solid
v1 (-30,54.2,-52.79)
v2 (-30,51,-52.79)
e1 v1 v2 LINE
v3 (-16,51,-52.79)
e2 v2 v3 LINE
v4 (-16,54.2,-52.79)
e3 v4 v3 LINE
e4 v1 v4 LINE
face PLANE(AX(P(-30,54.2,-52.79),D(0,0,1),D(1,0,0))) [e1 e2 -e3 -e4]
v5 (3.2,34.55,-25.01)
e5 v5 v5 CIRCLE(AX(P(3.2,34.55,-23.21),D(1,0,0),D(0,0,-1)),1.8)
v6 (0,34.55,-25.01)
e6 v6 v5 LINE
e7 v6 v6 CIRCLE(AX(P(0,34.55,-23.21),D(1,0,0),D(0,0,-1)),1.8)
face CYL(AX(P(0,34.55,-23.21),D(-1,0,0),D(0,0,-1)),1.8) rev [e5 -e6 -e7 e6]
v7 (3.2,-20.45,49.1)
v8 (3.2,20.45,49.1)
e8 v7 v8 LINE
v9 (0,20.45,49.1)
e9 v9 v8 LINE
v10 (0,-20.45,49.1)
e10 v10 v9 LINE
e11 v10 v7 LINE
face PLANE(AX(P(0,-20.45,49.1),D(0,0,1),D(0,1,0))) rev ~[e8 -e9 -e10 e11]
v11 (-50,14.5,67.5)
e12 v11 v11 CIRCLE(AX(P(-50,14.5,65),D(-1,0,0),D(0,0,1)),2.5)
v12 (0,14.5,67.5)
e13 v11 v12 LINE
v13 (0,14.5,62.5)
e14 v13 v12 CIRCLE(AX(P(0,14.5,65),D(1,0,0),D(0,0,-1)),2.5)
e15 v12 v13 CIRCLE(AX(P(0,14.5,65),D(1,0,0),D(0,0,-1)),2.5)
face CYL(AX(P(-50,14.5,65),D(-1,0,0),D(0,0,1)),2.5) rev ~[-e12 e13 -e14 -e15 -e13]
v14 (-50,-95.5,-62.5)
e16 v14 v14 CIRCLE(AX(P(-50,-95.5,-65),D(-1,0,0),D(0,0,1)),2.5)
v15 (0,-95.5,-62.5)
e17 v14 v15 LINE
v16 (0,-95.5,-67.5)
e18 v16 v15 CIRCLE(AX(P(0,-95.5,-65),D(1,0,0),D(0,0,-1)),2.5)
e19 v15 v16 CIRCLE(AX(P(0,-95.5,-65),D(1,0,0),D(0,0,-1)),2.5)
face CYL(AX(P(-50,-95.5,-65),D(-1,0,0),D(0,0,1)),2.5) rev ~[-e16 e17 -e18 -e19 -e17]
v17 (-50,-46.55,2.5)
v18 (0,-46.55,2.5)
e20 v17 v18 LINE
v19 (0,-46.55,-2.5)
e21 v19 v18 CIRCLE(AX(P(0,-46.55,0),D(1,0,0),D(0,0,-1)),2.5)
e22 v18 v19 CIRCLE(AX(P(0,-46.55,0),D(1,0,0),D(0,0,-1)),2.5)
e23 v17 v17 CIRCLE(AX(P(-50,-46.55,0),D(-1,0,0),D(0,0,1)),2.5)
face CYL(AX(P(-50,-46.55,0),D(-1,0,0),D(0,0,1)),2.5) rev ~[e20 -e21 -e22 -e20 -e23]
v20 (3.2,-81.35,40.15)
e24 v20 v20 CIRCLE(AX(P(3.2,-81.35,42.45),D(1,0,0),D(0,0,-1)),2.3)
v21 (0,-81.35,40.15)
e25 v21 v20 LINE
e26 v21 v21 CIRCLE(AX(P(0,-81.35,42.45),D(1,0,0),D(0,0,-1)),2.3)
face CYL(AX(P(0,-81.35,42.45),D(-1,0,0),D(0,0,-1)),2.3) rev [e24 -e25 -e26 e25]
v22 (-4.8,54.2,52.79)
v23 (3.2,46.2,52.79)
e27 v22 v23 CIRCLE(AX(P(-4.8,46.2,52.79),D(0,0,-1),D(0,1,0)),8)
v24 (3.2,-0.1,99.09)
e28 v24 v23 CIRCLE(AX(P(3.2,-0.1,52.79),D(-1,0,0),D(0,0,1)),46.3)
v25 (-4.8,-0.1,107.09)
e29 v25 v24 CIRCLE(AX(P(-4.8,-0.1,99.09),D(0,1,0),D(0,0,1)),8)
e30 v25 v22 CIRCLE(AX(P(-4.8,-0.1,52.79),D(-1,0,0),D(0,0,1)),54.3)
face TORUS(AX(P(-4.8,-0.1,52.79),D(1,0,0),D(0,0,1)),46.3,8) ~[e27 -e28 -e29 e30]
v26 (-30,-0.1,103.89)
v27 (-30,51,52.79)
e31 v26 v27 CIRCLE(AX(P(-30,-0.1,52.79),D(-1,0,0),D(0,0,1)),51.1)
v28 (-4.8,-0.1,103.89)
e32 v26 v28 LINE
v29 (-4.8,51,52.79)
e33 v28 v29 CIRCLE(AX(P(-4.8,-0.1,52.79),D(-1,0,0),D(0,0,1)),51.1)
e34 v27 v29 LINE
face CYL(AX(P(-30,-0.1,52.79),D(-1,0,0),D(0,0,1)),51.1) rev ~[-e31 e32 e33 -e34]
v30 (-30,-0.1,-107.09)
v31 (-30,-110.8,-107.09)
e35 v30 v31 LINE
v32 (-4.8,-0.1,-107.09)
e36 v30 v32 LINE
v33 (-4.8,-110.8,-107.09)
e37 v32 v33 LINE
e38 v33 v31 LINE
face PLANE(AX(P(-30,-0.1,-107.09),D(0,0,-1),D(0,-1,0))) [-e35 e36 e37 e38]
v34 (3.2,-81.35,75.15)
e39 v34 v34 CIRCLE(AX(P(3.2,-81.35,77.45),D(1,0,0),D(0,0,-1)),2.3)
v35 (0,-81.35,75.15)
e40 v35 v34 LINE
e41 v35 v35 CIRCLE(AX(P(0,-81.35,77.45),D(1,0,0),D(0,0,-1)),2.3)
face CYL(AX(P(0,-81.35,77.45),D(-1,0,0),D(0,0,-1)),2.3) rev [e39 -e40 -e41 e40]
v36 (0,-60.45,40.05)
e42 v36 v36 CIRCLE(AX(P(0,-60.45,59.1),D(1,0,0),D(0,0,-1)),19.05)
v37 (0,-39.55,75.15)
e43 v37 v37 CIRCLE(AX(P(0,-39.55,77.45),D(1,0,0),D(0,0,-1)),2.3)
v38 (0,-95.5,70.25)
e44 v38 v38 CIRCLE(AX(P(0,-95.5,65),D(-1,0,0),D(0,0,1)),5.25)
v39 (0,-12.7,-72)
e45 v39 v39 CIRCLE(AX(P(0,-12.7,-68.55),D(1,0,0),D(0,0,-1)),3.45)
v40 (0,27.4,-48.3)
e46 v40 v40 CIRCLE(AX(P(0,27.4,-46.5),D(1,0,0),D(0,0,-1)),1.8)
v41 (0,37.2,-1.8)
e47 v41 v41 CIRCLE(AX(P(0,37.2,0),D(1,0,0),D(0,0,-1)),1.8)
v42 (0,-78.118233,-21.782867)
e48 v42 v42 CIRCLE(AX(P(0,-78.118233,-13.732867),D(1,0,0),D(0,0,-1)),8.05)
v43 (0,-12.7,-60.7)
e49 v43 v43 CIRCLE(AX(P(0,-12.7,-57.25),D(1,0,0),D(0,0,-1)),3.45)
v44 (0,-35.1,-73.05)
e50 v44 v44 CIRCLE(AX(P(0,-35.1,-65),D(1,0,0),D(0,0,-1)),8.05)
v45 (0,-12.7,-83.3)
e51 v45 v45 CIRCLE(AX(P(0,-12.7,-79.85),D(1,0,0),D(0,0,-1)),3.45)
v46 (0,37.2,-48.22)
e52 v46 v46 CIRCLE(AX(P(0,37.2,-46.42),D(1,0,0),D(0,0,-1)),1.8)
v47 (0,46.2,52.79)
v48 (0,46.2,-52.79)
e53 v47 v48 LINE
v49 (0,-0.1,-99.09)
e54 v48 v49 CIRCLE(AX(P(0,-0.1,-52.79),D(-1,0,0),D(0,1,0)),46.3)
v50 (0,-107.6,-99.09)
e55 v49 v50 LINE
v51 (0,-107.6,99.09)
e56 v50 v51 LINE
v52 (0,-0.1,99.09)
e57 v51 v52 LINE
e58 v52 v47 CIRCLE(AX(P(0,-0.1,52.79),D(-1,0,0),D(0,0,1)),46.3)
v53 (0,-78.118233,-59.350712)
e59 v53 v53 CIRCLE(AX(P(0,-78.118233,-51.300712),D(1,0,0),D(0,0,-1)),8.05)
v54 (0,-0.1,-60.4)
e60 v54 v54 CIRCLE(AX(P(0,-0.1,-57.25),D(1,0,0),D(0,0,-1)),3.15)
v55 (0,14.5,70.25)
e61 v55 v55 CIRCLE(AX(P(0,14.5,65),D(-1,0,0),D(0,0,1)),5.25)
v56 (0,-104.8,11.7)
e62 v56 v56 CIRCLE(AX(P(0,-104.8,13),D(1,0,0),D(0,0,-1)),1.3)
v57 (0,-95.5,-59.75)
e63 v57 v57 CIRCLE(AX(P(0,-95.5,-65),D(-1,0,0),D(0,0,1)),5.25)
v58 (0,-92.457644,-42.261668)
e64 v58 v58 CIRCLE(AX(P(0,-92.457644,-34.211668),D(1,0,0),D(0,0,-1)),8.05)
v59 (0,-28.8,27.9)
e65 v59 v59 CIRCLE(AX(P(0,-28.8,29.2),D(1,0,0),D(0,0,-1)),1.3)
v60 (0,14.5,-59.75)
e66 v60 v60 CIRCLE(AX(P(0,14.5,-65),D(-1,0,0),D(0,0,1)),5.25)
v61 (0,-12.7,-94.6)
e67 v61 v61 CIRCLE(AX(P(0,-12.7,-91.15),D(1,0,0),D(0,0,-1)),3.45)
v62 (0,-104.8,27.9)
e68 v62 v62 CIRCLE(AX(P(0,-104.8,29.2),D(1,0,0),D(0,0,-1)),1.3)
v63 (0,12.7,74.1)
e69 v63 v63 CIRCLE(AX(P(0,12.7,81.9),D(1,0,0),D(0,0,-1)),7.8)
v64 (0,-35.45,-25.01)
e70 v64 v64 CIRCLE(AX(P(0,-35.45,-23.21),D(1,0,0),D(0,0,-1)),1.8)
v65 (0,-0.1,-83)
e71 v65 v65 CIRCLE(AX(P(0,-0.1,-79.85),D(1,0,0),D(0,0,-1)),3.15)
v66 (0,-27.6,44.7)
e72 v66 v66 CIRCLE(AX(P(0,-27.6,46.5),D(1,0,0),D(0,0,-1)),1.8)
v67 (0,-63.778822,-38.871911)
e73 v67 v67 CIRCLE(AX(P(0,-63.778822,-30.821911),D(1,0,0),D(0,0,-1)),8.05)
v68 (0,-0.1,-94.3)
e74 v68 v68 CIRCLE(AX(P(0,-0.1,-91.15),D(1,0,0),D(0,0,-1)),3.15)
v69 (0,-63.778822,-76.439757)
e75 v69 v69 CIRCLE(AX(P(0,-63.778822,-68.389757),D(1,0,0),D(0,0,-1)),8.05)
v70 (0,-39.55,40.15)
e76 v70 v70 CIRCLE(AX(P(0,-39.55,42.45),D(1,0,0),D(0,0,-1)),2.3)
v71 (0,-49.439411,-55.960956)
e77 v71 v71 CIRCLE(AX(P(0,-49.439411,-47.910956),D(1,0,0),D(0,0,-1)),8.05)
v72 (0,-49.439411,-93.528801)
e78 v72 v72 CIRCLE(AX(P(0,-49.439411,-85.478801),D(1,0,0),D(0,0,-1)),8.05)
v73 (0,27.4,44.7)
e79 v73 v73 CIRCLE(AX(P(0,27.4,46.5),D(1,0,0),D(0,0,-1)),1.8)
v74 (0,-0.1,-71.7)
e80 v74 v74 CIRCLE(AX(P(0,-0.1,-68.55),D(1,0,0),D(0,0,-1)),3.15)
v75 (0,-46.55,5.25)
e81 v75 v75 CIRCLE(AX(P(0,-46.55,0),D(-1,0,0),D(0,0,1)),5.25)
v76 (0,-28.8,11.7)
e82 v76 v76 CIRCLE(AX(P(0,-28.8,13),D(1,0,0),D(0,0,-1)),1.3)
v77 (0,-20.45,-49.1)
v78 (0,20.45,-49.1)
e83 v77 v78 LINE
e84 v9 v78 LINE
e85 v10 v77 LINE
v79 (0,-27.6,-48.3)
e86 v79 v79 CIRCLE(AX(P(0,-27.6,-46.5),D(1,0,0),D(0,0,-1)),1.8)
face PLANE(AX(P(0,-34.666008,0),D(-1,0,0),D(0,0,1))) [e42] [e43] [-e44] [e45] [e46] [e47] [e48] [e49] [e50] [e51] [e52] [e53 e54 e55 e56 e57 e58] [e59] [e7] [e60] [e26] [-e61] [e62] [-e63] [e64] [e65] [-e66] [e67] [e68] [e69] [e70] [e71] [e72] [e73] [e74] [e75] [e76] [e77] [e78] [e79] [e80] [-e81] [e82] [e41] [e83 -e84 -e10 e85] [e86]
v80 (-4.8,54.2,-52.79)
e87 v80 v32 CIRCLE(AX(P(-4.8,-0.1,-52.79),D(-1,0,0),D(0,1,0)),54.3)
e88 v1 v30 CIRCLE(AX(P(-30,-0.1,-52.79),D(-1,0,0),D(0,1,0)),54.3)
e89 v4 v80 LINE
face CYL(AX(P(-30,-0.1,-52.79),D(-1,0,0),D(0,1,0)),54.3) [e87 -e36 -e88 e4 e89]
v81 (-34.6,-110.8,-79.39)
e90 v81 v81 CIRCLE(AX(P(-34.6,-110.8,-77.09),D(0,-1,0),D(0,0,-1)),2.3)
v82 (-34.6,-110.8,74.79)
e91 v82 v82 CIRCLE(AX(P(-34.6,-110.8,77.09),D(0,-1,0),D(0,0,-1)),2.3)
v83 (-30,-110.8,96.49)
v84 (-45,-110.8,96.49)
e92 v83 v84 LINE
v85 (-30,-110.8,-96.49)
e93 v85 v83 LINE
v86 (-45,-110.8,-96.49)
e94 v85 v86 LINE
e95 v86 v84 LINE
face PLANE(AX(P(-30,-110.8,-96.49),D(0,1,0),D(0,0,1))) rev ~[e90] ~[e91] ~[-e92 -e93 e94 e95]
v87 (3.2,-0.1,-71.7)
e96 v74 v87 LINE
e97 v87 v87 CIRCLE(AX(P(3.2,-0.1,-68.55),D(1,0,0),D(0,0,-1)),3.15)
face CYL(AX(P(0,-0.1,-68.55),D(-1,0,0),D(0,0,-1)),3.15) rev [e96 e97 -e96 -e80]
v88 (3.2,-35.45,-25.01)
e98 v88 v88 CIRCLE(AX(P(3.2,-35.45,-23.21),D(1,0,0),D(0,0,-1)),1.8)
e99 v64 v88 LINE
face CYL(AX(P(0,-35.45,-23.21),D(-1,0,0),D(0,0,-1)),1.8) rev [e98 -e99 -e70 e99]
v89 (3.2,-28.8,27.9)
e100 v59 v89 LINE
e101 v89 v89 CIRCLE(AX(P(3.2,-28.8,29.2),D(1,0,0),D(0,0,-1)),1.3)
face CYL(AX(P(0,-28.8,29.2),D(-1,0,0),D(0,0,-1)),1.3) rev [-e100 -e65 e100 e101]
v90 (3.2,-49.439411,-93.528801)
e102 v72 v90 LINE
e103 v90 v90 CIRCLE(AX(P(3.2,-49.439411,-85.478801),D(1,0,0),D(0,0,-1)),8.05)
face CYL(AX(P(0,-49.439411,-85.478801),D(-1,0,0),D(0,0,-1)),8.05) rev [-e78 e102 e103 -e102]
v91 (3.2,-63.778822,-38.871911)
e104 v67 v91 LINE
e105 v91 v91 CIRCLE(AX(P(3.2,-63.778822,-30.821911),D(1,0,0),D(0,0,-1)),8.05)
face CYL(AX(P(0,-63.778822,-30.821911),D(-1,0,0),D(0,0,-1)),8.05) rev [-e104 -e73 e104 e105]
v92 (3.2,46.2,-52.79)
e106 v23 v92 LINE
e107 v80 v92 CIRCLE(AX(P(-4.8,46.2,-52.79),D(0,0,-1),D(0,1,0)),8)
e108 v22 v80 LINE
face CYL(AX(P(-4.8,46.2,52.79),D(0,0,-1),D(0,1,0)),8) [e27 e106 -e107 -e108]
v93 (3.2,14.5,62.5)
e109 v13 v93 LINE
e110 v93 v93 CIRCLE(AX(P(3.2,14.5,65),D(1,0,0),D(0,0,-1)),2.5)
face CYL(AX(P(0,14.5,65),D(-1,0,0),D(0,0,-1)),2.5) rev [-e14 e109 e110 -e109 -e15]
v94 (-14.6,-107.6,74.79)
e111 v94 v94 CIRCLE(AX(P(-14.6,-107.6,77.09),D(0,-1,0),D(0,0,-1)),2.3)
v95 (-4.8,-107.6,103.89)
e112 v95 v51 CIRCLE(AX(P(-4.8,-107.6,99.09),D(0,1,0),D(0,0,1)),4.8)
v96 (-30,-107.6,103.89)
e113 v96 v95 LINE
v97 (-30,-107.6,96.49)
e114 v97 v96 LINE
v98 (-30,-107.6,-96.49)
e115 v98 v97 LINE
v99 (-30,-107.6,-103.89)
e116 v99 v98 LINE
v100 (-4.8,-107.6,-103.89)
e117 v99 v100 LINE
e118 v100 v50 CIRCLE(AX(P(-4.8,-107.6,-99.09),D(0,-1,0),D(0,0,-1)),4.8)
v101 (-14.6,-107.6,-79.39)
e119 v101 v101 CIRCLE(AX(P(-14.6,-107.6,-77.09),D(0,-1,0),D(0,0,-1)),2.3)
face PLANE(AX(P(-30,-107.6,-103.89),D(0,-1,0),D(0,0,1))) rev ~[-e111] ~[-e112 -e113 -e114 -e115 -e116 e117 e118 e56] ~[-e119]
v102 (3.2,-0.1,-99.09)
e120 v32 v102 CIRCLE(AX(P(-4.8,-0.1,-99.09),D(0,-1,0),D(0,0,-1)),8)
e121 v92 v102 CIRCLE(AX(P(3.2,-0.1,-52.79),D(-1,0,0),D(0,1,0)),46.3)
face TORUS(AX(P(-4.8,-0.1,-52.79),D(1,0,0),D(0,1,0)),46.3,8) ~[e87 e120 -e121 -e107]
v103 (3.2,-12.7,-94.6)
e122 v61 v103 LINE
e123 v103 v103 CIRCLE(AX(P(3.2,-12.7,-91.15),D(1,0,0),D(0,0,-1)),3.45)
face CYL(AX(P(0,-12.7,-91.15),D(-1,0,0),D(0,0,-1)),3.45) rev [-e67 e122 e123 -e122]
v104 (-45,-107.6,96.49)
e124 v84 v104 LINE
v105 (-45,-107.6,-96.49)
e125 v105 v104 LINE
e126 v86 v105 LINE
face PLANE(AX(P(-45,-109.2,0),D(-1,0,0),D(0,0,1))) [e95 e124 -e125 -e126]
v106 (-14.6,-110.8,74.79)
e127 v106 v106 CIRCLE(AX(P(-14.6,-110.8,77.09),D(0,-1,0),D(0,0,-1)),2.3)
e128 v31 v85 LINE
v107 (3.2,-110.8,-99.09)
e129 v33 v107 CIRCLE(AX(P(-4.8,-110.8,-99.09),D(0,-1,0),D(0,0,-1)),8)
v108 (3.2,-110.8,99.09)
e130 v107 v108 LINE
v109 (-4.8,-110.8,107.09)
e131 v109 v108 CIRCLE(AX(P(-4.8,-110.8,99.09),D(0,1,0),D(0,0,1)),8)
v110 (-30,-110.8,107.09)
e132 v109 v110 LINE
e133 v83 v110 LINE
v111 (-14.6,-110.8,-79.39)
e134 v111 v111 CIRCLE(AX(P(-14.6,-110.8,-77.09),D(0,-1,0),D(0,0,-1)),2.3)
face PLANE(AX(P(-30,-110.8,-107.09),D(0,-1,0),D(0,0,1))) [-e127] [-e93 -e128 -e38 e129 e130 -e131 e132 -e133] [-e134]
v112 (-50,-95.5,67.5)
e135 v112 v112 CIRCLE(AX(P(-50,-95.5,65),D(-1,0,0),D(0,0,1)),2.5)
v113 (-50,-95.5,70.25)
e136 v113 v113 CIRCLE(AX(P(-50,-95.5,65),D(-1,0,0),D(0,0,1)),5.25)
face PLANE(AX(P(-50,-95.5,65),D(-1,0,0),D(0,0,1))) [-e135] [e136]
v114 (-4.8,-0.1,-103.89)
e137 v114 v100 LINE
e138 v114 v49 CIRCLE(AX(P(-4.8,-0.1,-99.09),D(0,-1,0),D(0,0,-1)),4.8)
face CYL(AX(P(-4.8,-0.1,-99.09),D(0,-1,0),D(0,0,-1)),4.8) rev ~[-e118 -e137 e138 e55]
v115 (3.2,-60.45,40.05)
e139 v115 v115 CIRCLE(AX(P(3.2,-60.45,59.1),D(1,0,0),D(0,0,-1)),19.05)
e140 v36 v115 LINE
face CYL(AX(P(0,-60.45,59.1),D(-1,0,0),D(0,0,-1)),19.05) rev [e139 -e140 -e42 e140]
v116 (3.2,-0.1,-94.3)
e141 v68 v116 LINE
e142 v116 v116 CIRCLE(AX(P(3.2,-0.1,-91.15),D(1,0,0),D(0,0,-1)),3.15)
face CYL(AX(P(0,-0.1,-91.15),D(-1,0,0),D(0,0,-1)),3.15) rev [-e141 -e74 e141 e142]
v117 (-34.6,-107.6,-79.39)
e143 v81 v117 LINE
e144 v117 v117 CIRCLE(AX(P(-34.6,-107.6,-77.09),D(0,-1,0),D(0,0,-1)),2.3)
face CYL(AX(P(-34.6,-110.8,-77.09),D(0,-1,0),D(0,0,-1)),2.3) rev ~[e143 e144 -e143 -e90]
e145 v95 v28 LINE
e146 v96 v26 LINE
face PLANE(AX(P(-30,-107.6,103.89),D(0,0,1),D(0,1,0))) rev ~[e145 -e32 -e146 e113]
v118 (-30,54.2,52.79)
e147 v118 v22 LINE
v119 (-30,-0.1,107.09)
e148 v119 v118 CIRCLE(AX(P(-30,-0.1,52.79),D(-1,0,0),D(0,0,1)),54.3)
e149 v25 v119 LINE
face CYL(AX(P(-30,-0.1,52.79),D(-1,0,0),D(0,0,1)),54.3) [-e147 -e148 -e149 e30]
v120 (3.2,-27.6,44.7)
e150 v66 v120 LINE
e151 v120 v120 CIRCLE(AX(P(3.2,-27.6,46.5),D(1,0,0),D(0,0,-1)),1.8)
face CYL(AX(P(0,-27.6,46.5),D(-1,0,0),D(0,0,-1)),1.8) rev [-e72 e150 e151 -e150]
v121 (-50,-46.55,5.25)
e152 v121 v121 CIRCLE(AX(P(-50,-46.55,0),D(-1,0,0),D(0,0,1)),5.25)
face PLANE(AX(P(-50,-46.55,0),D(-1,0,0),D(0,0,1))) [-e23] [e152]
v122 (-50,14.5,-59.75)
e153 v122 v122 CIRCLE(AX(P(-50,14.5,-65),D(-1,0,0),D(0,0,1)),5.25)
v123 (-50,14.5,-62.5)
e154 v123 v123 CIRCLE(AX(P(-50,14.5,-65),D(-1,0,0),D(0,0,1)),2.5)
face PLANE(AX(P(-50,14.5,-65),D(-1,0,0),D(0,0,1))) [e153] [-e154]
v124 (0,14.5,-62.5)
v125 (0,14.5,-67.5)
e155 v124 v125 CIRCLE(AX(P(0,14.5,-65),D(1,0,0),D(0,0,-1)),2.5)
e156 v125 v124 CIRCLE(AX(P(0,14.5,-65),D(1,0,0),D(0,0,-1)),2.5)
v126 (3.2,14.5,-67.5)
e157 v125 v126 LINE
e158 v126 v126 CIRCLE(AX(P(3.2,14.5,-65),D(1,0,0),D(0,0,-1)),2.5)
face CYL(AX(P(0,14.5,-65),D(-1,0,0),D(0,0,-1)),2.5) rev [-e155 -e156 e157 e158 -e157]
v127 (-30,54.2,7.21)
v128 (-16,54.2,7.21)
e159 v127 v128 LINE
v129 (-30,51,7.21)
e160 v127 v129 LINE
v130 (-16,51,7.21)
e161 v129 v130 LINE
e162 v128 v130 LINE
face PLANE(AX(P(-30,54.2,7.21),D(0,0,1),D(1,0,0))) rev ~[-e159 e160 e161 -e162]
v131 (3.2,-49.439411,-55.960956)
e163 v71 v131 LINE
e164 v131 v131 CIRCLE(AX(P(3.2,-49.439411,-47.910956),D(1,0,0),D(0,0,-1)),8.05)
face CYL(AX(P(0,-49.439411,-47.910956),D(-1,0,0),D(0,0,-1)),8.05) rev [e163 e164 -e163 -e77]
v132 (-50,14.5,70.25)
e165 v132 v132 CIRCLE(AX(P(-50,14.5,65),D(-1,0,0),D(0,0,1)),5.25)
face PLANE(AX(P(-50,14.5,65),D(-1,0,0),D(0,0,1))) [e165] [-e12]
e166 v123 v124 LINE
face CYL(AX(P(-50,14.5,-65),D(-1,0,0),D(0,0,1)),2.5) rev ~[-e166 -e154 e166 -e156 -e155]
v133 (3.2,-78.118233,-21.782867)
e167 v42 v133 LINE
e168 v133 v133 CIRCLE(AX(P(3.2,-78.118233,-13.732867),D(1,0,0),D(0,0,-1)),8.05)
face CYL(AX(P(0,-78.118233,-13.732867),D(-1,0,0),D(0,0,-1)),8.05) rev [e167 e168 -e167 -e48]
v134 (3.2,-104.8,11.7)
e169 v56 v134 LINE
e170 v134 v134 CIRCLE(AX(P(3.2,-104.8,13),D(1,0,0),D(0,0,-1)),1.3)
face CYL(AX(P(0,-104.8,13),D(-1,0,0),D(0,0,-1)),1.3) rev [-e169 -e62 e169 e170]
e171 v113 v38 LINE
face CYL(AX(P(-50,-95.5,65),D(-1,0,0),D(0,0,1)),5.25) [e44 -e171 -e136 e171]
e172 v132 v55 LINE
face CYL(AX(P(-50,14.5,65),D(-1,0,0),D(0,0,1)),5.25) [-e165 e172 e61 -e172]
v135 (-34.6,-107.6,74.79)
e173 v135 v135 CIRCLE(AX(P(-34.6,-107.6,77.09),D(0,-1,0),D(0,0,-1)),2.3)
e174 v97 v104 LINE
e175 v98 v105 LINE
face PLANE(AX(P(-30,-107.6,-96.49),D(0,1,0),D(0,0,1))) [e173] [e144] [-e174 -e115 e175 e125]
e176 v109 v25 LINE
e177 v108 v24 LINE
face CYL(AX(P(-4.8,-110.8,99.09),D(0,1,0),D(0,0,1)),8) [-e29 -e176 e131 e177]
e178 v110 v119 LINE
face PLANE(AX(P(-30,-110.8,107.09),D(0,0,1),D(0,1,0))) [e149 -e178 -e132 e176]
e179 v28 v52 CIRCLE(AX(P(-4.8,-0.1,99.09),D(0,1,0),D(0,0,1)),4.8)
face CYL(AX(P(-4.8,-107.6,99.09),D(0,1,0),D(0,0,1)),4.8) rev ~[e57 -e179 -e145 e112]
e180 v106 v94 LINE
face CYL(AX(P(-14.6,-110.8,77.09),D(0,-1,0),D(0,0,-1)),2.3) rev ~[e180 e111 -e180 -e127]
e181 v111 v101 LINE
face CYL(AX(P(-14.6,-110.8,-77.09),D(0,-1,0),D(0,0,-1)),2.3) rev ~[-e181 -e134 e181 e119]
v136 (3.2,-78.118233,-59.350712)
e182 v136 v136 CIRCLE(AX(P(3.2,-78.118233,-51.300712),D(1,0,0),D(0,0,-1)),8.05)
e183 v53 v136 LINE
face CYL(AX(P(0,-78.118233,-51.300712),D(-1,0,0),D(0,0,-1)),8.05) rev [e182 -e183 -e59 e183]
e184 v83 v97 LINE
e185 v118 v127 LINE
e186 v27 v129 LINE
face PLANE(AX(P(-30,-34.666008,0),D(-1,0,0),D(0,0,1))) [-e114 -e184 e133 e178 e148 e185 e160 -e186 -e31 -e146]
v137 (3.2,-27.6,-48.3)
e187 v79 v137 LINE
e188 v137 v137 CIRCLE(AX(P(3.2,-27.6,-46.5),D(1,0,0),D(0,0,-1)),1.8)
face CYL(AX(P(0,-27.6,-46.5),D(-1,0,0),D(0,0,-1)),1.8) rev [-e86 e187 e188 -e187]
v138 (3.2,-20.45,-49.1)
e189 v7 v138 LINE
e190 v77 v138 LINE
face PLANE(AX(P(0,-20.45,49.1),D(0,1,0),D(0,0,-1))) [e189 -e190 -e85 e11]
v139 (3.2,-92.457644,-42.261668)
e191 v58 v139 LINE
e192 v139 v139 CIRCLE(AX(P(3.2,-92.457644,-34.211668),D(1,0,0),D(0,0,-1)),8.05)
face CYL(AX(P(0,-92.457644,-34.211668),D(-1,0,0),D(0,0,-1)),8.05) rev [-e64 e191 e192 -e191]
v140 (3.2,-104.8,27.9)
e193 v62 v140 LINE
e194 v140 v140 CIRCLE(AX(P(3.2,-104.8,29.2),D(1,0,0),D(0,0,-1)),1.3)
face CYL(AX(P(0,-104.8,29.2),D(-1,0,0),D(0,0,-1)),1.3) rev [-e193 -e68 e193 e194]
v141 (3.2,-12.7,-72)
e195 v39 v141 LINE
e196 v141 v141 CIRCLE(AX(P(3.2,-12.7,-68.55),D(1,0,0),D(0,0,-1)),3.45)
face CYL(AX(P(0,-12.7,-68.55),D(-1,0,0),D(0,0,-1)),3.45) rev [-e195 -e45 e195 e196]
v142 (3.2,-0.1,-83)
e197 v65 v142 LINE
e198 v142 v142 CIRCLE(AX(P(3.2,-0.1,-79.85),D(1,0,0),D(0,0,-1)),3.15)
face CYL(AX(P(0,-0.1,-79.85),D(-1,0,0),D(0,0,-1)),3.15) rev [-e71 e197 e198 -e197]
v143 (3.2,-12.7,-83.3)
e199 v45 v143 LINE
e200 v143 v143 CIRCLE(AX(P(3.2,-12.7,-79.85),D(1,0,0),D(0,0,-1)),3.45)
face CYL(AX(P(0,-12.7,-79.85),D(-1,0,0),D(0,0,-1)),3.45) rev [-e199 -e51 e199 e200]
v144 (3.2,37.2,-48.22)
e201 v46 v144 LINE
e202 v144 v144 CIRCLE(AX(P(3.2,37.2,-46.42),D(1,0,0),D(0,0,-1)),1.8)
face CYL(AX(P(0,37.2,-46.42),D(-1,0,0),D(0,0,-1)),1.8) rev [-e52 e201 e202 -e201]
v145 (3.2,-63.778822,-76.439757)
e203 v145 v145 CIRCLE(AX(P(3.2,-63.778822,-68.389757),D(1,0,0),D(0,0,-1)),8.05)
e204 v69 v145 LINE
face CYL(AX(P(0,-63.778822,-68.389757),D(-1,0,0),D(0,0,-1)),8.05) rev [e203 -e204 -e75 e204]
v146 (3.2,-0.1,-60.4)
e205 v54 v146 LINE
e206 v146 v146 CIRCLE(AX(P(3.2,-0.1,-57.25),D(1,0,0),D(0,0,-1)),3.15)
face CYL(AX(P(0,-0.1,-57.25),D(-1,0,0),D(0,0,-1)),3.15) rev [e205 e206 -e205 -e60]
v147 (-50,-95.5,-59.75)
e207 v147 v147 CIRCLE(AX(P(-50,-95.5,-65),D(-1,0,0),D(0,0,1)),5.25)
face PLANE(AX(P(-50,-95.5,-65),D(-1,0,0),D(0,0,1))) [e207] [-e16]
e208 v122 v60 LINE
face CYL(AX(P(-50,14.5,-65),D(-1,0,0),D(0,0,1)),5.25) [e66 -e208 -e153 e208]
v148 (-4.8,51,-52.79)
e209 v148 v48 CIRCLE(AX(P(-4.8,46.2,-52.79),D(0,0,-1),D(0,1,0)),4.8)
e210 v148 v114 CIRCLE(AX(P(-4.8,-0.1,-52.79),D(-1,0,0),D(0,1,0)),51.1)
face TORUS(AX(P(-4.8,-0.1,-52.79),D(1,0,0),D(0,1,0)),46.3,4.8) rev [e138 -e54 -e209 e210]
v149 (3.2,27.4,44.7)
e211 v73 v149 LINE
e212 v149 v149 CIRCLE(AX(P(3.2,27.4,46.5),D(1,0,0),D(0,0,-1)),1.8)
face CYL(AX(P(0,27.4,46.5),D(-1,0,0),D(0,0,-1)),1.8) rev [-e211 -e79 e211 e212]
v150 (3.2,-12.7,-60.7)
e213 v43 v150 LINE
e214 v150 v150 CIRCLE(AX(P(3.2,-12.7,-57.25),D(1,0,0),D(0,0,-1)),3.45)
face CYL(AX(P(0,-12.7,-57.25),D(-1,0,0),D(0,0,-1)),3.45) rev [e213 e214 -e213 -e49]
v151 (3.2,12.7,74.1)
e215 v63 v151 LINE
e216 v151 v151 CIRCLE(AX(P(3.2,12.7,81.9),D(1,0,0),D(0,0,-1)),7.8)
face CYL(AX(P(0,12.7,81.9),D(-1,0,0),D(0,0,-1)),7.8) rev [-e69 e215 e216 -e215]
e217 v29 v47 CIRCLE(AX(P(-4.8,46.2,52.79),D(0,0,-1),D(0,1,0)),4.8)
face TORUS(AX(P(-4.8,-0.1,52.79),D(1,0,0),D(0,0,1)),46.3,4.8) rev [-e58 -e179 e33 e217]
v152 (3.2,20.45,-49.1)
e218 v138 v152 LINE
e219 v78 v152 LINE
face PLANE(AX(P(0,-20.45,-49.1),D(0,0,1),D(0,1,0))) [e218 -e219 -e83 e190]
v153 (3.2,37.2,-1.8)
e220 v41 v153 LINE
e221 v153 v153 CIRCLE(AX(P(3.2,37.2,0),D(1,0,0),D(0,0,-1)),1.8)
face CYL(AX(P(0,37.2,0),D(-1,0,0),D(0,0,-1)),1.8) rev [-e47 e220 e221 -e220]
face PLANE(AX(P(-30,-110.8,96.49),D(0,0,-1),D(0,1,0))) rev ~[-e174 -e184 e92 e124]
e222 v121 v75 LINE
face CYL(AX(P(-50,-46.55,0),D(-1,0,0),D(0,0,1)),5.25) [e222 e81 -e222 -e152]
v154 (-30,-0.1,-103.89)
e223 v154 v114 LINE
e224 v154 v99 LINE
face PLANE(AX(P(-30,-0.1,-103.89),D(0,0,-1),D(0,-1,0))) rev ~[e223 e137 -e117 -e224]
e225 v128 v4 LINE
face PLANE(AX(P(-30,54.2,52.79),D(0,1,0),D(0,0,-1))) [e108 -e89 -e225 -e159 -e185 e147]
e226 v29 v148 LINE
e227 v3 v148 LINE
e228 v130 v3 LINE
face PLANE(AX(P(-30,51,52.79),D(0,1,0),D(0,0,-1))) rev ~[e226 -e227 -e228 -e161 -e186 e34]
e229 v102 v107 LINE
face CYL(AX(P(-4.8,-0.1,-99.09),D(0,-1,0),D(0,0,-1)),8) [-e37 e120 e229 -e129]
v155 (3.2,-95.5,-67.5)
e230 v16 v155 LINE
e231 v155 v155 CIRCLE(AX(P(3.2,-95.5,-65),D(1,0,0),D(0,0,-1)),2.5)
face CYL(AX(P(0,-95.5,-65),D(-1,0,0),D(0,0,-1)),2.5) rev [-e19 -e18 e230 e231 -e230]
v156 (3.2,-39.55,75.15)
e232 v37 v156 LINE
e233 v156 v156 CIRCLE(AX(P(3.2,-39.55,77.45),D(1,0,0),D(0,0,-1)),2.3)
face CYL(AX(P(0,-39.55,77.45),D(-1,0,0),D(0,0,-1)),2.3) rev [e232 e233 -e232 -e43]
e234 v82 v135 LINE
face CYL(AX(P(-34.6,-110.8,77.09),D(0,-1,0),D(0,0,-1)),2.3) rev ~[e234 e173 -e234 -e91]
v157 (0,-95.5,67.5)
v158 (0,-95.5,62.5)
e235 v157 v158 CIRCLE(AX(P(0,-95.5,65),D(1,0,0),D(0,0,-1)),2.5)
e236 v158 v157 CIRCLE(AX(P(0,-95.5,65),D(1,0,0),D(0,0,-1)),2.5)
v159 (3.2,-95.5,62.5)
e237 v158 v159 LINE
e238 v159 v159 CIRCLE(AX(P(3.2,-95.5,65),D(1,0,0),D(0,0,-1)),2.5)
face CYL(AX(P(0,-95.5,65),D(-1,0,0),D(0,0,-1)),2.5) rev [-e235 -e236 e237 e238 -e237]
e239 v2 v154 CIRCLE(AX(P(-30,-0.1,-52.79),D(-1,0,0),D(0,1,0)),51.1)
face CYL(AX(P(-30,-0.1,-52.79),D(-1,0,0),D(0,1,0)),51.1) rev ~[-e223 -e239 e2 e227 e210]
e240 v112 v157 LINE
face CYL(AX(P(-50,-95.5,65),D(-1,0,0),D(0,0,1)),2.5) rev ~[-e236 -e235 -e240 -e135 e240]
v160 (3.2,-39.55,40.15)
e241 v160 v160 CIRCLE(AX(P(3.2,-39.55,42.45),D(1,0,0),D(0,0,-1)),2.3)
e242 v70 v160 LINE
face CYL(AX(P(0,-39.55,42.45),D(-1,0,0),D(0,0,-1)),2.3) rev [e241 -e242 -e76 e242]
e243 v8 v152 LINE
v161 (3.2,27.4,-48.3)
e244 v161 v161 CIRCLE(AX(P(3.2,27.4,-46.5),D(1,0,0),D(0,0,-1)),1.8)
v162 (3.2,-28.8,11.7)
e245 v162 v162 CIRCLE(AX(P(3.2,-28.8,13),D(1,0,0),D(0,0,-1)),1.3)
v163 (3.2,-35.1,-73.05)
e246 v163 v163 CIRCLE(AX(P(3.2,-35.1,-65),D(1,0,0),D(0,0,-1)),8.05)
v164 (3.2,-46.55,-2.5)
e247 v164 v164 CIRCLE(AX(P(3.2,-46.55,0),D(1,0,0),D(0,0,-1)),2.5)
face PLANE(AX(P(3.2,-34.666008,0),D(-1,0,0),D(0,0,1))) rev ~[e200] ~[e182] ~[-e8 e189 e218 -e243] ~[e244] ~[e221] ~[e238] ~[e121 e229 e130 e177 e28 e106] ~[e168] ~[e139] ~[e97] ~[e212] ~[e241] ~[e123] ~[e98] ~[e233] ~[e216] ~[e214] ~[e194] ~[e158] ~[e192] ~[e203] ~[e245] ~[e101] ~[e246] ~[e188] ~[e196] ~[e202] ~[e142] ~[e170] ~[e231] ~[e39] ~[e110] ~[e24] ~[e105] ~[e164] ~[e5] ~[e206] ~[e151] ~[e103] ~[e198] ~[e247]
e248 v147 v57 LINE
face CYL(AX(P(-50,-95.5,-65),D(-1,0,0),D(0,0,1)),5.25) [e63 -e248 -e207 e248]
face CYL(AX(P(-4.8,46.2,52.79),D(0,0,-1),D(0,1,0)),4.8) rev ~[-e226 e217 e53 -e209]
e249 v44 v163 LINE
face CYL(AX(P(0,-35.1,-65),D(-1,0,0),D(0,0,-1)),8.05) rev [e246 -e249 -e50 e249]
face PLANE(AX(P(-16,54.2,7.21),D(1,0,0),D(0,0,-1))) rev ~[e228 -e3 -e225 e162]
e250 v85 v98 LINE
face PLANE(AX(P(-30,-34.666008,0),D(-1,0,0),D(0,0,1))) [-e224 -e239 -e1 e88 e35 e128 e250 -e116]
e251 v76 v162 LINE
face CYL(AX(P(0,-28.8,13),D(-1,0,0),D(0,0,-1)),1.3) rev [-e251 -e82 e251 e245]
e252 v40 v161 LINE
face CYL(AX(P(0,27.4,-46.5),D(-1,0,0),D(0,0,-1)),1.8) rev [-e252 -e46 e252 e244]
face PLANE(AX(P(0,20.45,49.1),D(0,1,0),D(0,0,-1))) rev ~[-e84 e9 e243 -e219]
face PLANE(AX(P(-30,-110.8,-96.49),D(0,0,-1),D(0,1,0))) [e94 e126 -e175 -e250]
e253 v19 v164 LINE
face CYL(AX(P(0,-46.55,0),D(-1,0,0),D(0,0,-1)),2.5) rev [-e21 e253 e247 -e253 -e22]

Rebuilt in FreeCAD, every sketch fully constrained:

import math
import FreeCAD as App
import Part
import Sketcher
from FreeCAD import Vector
Q = App.Units.Quantity


def edges_at(feature, points):
    """Names of the edges that pass closest to the given points."""
    edges = feature.Shape.Edges
    near = lambda p: min(range(len(edges)), key=lambda i: edges[i].distToShape(Part.Vertex(*p))[0])
    return sorted({f"Edge{near(p) + 1}" for p in points})


def add_polygon(sketch, points):
    """Adds a closed chain of lines whose ends are joined by coincident constraints."""
    first, n = sketch.GeometryCount, len(points)
    for a, b in zip(points, points[1:] + points[:1]):
        sketch.addGeometry(Part.LineSegment(App.Vector(*a, 0), App.Vector(*b, 0)), False)
    for i in range(n):
        sketch.addConstraint(Sketcher.Constraint("Coincident", first + i, 2, first + (i + 1) % n, 1))

doc = App.newDocument("Part")
body = doc.addObject("PartDesign::Body", "Body")

# Sketch on YZ plane
sketch1 = body.newObject("Sketcher::SketchObject", "Sketch")
sketch1.AttachmentSupport = (doc.getObject("YZ_Plane"), [""])
sketch1.MapMode = "FlatFace"
sketch1.addGeometry(Part.LineSegment(Vector(54.2, -52.8, 0), Vector(54.2, 52.8, 0)), False)  # 0
sketch1.addGeometry(Part.ArcOfCircle(Part.Circle(Vector(-0.1, 52.8, 0), Vector(0, 0, 1), 54.3), math.radians(0), math.radians(90)), False)  # 1
sketch1.addGeometry(Part.LineSegment(Vector(-0.1, 107.1, 0), Vector(-110.8, 107.1, 0)), False)  # 2
sketch1.addGeometry(Part.LineSegment(Vector(-110.8, 107.1, 0), Vector(-110.8, -107.1, 0)), False)  # 3
sketch1.addGeometry(Part.LineSegment(Vector(-110.8, -107.1, 0), Vector(-0.1, -107.1, 0)), False)  # 4
sketch1.addGeometry(Part.ArcOfCircle(Part.Circle(Vector(-0.1, -52.8, 0), Vector(0, 0, 1), 54.3), math.radians(-90), math.radians(0)), False)  # 5
sketch1.addGeometry(Part.Circle(Vector(-95.5, -65, 0), Vector(0, 0, 1), 2.5), False)  # 6
sketch1.addGeometry(Part.Circle(Vector(-78.1, -51.3, 0), Vector(0, 0, 1), 8.1), False)  # 7
sketch1.addGeometry(Part.Circle(Vector(-92.5, -34.2, 0), Vector(0, 0, 1), 8.1), False)  # 8
sketch1.addGeometry(Part.Circle(Vector(-78.1, -13.7, 0), Vector(0, 0, 1), 8.1), False)  # 9
sketch1.addGeometry(Part.Circle(Vector(-63.8, -68.4, 0), Vector(0, 0, 1), 8.1), False)  # 10
sketch1.addGeometry(Part.Circle(Vector(-49.4, -85.5, 0), Vector(0, 0, 1), 8.1), False)  # 11
sketch1.addGeometry(Part.Circle(Vector(-35.1, -65, 0), Vector(0, 0, 1), 8.1), False)  # 12
sketch1.addGeometry(Part.Circle(Vector(-63.8, -30.8, 0), Vector(0, 0, 1), 8.1), False)  # 13
sketch1.addGeometry(Part.Circle(Vector(-49.4, -47.9, 0), Vector(0, 0, 1), 8.1), False)  # 14
sketch1.addGeometry(Part.Circle(Vector(-35.5, -23.2, 0), Vector(0, 0, 1), 1.8), False)  # 15
sketch1.addGeometry(Part.Circle(Vector(-104.8, 13, 0), Vector(0, 0, 1), 1.3), False)  # 16
sketch1.addGeometry(Part.Circle(Vector(-104.8, 29.2, 0), Vector(0, 0, 1), 1.3), False)  # 17
sketch1.addGeometry(Part.Circle(Vector(-81.3, 42.5, 0), Vector(0, 0, 1), 2.3), False)  # 18
sketch1.addGeometry(Part.Circle(Vector(-95.5, 65, 0), Vector(0, 0, 1), 2.5), False)  # 19
sketch1.addGeometry(Part.Circle(Vector(-81.3, 77.5, 0), Vector(0, 0, 1), 2.3), False)  # 20
sketch1.addGeometry(Part.Circle(Vector(-46.5, 0, 0), Vector(0, 0, 1), 2.5), False)  # 21
sketch1.addGeometry(Part.Circle(Vector(-39.5, 42.5, 0), Vector(0, 0, 1), 2.3), False)  # 22
sketch1.addGeometry(Part.Circle(Vector(-60.5, 59.1, 0), Vector(0, 0, 1), 19.1), False)  # 23
sketch1.addGeometry(Part.Circle(Vector(-39.5, 77.5, 0), Vector(0, 0, 1), 2.3), False)  # 24
sketch1.addGeometry(Part.Circle(Vector(-12.7, -91.2, 0), Vector(0, 0, 1), 3.5), False)  # 25
sketch1.addGeometry(Part.Circle(Vector(-12.7, -79.8, 0), Vector(0, 0, 1), 3.5), False)  # 26
sketch1.addGeometry(Part.Circle(Vector(-0.1, -91.2, 0), Vector(0, 0, 1), 3.1), False)  # 27
sketch1.addGeometry(Part.Circle(Vector(-0.1, -79.8, 0), Vector(0, 0, 1), 3.1), False)  # 28
sketch1.addGeometry(Part.Circle(Vector(-12.7, -68.5, 0), Vector(0, 0, 1), 3.5), False)  # 29
sketch1.addGeometry(Part.Circle(Vector(-12.7, -57.2, 0), Vector(0, 0, 1), 3.5), False)  # 30
sketch1.addGeometry(Part.Circle(Vector(-0.1, -68.5, 0), Vector(0, 0, 1), 3.1), False)  # 31
sketch1.addGeometry(Part.Circle(Vector(-0.1, -57.2, 0), Vector(0, 0, 1), 3.1), False)  # 32
sketch1.addGeometry(Part.Circle(Vector(-27.6, -46.5, 0), Vector(0, 0, 1), 1.8), False)  # 33
sketch1.addGeometry(Part.Circle(Vector(14.5, -65, 0), Vector(0, 0, 1), 2.5), False)  # 34
sketch1.addGeometry(Part.Circle(Vector(27.4, -46.5, 0), Vector(0, 0, 1), 1.8), False)  # 35
sketch1.addGeometry(Part.Circle(Vector(37.2, -46.4, 0), Vector(0, 0, 1), 1.8), False)  # 36
sketch1.addGeometry(Part.Circle(Vector(34.5, -23.2, 0), Vector(0, 0, 1), 1.8), False)  # 37
sketch1.addGeometry(Part.Circle(Vector(-28.8, 13, 0), Vector(0, 0, 1), 1.3), False)  # 38
sketch1.addGeometry(Part.Circle(Vector(-28.8, 29.2, 0), Vector(0, 0, 1), 1.3), False)  # 39
add_polygon(sketch1, [(-20.4, 49.1), (20.4, 49.1), (20.4, -49.1), (-20.4, -49.1)])  # lines 40-43
sketch1.addGeometry(Part.Circle(Vector(-27.6, 46.5, 0), Vector(0, 0, 1), 1.8), False)  # 44
sketch1.addGeometry(Part.Circle(Vector(37.2, 0, 0), Vector(0, 0, 1), 1.8), False)  # 45
sketch1.addGeometry(Part.Circle(Vector(14.5, 65, 0), Vector(0, 0, 1), 2.5), False)  # 46
sketch1.addGeometry(Part.Circle(Vector(12.7, 81.9, 0), Vector(0, 0, 1), 7.8), False)  # 47
sketch1.addGeometry(Part.Circle(Vector(27.4, 46.5, 0), Vector(0, 0, 1), 1.8), False)  # 48
sketch1.addConstraint([
    Sketcher.Constraint("Tangent", 0, 2, 1, 1),
    Sketcher.Constraint("Tangent", 1, 2, 2, 1),
    Sketcher.Constraint("Coincident", 2, 2, 3, 1),
    Sketcher.Constraint("Coincident", 3, 2, 4, 1),
    Sketcher.Constraint("Tangent", 4, 2, 5, 1),
    Sketcher.Constraint("Tangent", 5, 2, 0, 1),
    Sketcher.Constraint("Vertical", 0),
    Sketcher.Constraint("Horizontal", 2),
    Sketcher.Constraint("Vertical", 3),
    Sketcher.Constraint("Horizontal", 4),
    Sketcher.Constraint("Horizontal", 40),
    Sketcher.Constraint("Vertical", 41),
    Sketcher.Constraint("Horizontal", 42),
    Sketcher.Constraint("Vertical", 43),
    Sketcher.Constraint("Equal", 1, 5),
    Sketcher.Constraint("Equal", 7, 8),
    Sketcher.Constraint("Equal", 8, 9),
    Sketcher.Constraint("Equal", 9, 10),
    Sketcher.Constraint("Equal", 10, 11),
    Sketcher.Constraint("Equal", 11, 12),
    Sketcher.Constraint("Equal", 12, 13),
    Sketcher.Constraint("Equal", 13, 14),
    Sketcher.Constraint("Equal", 16, 17),
    Sketcher.Constraint("Equal", 6, 19),
    Sketcher.Constraint("Equal", 18, 20),
    Sketcher.Constraint("Equal", 19, 21),
    Sketcher.Constraint("Equal", 20, 22),
    Sketcher.Constraint("Equal", 22, 24),
    Sketcher.Constraint("Equal", 25, 26),
    Sketcher.Constraint("Equal", 27, 28),
    Sketcher.Constraint("Equal", 26, 29),
    Sketcher.Constraint("Equal", 29, 30),
    Sketcher.Constraint("Equal", 28, 31),
    Sketcher.Constraint("Equal", 31, 32),
    Sketcher.Constraint("Equal", 15, 33),
    Sketcher.Constraint("Equal", 21, 34),
    Sketcher.Constraint("Equal", 33, 35),
    Sketcher.Constraint("Equal", 35, 36),
    Sketcher.Constraint("Equal", 36, 37),
    Sketcher.Constraint("Equal", 17, 38),
    Sketcher.Constraint("Equal", 38, 39),
    Sketcher.Constraint("Equal", 37, 44),
    Sketcher.Constraint("Equal", 44, 45),
    Sketcher.Constraint("Equal", 34, 46),
    Sketcher.Constraint("Equal", 45, 48),
    Sketcher.Constraint("Symmetric", 40, 2, 42, 2, -1, 1),
    Sketcher.Constraint("Symmetric", 6, 3, 19, 3, -1),
    Sketcher.Constraint("Symmetric", 33, 3, 44, 3, -1),
    Sketcher.Constraint("Symmetric", 34, 3, 46, 3, -1),
    Sketcher.Constraint("Symmetric", 35, 3, 48, 3, -1),
    Sketcher.Constraint("PointOnObject", 21, 3, -1),
    Sketcher.Constraint("PointOnObject", 45, 3, -1),
    Sketcher.Constraint("Horizontal", 6, 3, 12, 3),
    Sketcher.Constraint("Horizontal", 18, 3, 22, 3),
    Sketcher.Constraint("Horizontal", 20, 3, 24, 3),
    Sketcher.Constraint("Horizontal", 25, 3, 27, 3),
    Sketcher.Constraint("Horizontal", 26, 3, 28, 3),
    Sketcher.Constraint("Horizontal", 29, 3, 31, 3),
    Sketcher.Constraint("Horizontal", 30, 3, 32, 3),
    Sketcher.Constraint("Horizontal", 12, 3, 34, 3),
    Sketcher.Constraint("Horizontal", 33, 3, 35, 3),
    Sketcher.Constraint("Horizontal", 15, 3, 37, 3),
    Sketcher.Constraint("Horizontal", 16, 3, 38, 3),
    Sketcher.Constraint("Horizontal", 17, 3, 39, 3),
    Sketcher.Constraint("Vertical", 7, 3, 9, 3),
    Sketcher.Constraint("Vertical", 10, 3, 13, 3),
    Sketcher.Constraint("Vertical", 11, 3, 14, 3),
    Sketcher.Constraint("Vertical", 16, 3, 17, 3),
    Sketcher.Constraint("Vertical", 18, 3, 20, 3),
    Sketcher.Constraint("Vertical", 22, 3, 24, 3),
    Sketcher.Constraint("Vertical", 25, 3, 26, 3),
    Sketcher.Constraint("Vertical", 5, 3, 27, 3),
    Sketcher.Constraint("Vertical", 27, 3, 28, 3),
    Sketcher.Constraint("Vertical", 26, 3, 29, 3),
    Sketcher.Constraint("Vertical", 29, 3, 30, 3),
    Sketcher.Constraint("Vertical", 28, 3, 31, 3),
    Sketcher.Constraint("Vertical", 31, 3, 32, 3),
    Sketcher.Constraint("Vertical", 38, 3, 39, 3),
    Sketcher.Constraint("Vertical", 36, 3, 45, 3),
    Sketcher.Constraint("Diameter", 6, Q("5 mm")),
    Sketcher.Constraint("Diameter", 7, Q("16.1 mm")),
    Sketcher.Constraint("Diameter", 15, Q("3.6 mm")),
    Sketcher.Constraint("Diameter", 16, Q("2.6 mm")),
    Sketcher.Constraint("Diameter", 18, Q("4.6 mm")),
    Sketcher.Constraint("Diameter", 23, Q("38.1 mm")),
    Sketcher.Constraint("Diameter", 25, Q("6.9 mm")),
    Sketcher.Constraint("Diameter", 27, Q("6.3 mm")),
    Sketcher.Constraint("Diameter", 47, Q("15.6 mm")),
    Sketcher.Constraint("Radius", 1, Q("54.3 mm")),
    Sketcher.Constraint("DistanceX", 2, 2, 2, 1, Q("110.7 mm")),
    Sketcher.Constraint("DistanceX", 40, 1, 40, 2, Q("40.9 mm")),
    Sketcher.Constraint("DistanceY", 41, 2, 41, 1, Q("98.2 mm")),
    Sketcher.Constraint("DistanceY", 6, 3, -1, 1, Q("65 mm")),
    Sketcher.Constraint("DistanceY", -1, 1, 16, 3, Q("13 mm")),
    Sketcher.Constraint("DistanceX", 12, 3, 5, 3, Q("35 mm")),
    Sketcher.Constraint("DistanceY", 18, 3, 20, 3, Q("35 mm")),
    Sketcher.Constraint("DistanceX", 21, 3, 22, 3, Q("7 mm")),
    Sketcher.Constraint("DistanceX", 44, 3, 48, 3, Q("55 mm")),
    Sketcher.Constraint("DistanceX", 45, 3, 0, 2, Q("17 mm")),
    Sketcher.Constraint("DistanceY", 0, 1, 0, 2, Q("105.58 mm")),
    Sketcher.Constraint("DistanceX", 1, 3, -1, 1, Q("0.1 mm")),
    Sketcher.Constraint("DistanceX", 6, 3, -1, 1, Q("95.5 mm")),
    Sketcher.Constraint("DistanceX", 16, 3, -1, 1, Q("104.8 mm")),
    Sketcher.Constraint("DistanceY", -1, 1, 17, 3, Q("29.2 mm")),
    Sketcher.Constraint("DistanceY", -1, 1, 23, 3, Q("59.1 mm")),
    Sketcher.Constraint("DistanceX", 25, 3, -1, 1, Q("12.7 mm")),
    Sketcher.Constraint("DistanceX", 33, 3, -1, 1, Q("27.6 mm")),
    Sketcher.Constraint("DistanceY", 33, 3, -1, 1, Q("46.5 mm")),
    Sketcher.Constraint("DistanceX", -1, 1, 34, 3, Q("14.5 mm")),
    Sketcher.Constraint("DistanceX", 38, 3, -1, 1, Q("28.8 mm")),
    Sketcher.Constraint("DistanceX", -1, 1, 47, 3, Q("12.7 mm")),
    Sketcher.Constraint("DistanceY", -1, 1, 47, 3, Q("81.9 mm")),
    Sketcher.Constraint("DistanceX", 21, 3, 15, 3, Q("11.1 mm")),
    Sketcher.Constraint("DistanceX", 18, 3, 21, 3, Q("34.8 mm")),
    Sketcher.Constraint("DistanceX", 18, 3, 23, 3, Q("20.9 mm")),
    Sketcher.Constraint("DistanceY", 25, 3, 26, 3, Q("11.3 mm")),
    Sketcher.Constraint("DistanceY", 26, 3, 29, 3, Q("11.3 mm")),
    Sketcher.Constraint("DistanceY", 29, 3, 30, 3, Q("11.3 mm")),
    Sketcher.Constraint("DistanceX", 22, 3, 43, 2, Q("19.1 mm")),
    Sketcher.Constraint("DistanceY", -1, 1, 1, 3, Q("52.79 mm")),
    Sketcher.Constraint("DistanceY", 15, 3, -1, 1, Q("23.21 mm")),
    Sketcher.Constraint("DistanceY", -1, 1, 18, 3, Q("42.45 mm")),
    Sketcher.Constraint("DistanceY", 25, 3, -1, 1, Q("91.15 mm")),
    Sketcher.Constraint("DistanceY", 36, 3, -1, 1, Q("46.42 mm")),
    Sketcher.Constraint("DistanceX", -1, 1, 37, 3, Q("34.55 mm")),
    Sketcher.Constraint("DistanceY", 11, 3, -1, 1, Q("85.478801 mm")),
    Sketcher.Constraint("DistanceY", 8, 3, 9, 3, Q("20.478801 mm")),
    Sketcher.Constraint("DistanceY", 7, 3, 13, 3, Q("20.478801 mm")),
    Sketcher.Constraint("DistanceY", 10, 3, 14, 3, Q("20.478801 mm")),
    Sketcher.Constraint("DistanceX", 10, 3, -1, 1, Q("63.778822 mm")),
    Sketcher.Constraint("DistanceX", 11, 3, -1, 1, Q("49.439411 mm")),
    Sketcher.Constraint("DistanceY", 13, 3, -1, 1, Q("30.821911 mm")),
    Sketcher.Constraint("DistanceX", 8, 3, 7, 3, Q("14.339411 mm")),
    Sketcher.Constraint("DistanceX", 7, 3, 10, 3, Q("14.339411 mm")),
    Sketcher.Constraint("DistanceY", 10, 3, 8, 3, Q("34.178089 mm")),
    Sketcher.Constraint("DistanceY", 8, 3, -1, 1, Q("34.211668 mm")),
])
pad1 = body.newObject("PartDesign::Pad", "Pad")
pad1.Profile = sketch1
pad1.Length = 3.2

# Sketch on YZ plane
sketch2 = body.newObject("Sketcher::SketchObject", "Sketch001")
sketch2.AttachmentSupport = (doc.getObject("YZ_Plane"), [""])
sketch2.MapMode = "FlatFace"
sketch2.AttachmentOffset = App.Placement(Vector(0, 0, -30), App.Rotation())
sketch2.addGeometry([
    Part.LineSegment(Vector(0, -107, 0), Vector(-111, -107, 0)),  # 0
    Part.LineSegment(Vector(-111, -107, 0), Vector(-111, 107, 0)),  # 1
    Part.LineSegment(Vector(-111, 107, 0), Vector(0, 107, 0)),  # 2
    Part.ArcOfCircle(Part.Circle(Vector(0, 53, 0), Vector(0, 0, 1), 54), math.radians(0), math.radians(90)),  # 3
    Part.LineSegment(Vector(54, 53, 0), Vector(54, -53, 0)),  # 4
    Part.ArcOfCircle(Part.Circle(Vector(0, -53, 0), Vector(0, 0, 1), 54), math.radians(-90), math.radians(0)),  # 5
    Part.LineSegment(Vector(-108, -104, 0), Vector(0, -104, 0)),  # 6
    Part.ArcOfCircle(Part.Circle(Vector(0, -53, 0), Vector(0, 0, 1), 51), math.radians(-90), math.radians(0)),  # 7
    Part.LineSegment(Vector(51, -53, 0), Vector(51, 53, 0)),  # 8
    Part.ArcOfCircle(Part.Circle(Vector(0, 53, 0), Vector(0, 0, 1), 51), math.radians(0), math.radians(90)),  # 9
    Part.LineSegment(Vector(0, 104, 0), Vector(-108, 104, 0)),  # 10
    Part.LineSegment(Vector(-108, 104, 0), Vector(-108, -104, 0)),  # 11
], False)
sketch2.addConstraint([
    Sketcher.Constraint("Coincident", 0, 2, 1, 1),
    Sketcher.Constraint("Coincident", 1, 2, 2, 1),
    Sketcher.Constraint("Tangent", 2, 2, 3, 2),
    Sketcher.Constraint("Tangent", 3, 1, 4, 1),
    Sketcher.Constraint("Tangent", 4, 2, 5, 2),
    Sketcher.Constraint("Tangent", 5, 1, 0, 1),
    Sketcher.Constraint("Tangent", 6, 2, 7, 1),
    Sketcher.Constraint("Tangent", 7, 2, 8, 1),
    Sketcher.Constraint("Tangent", 8, 2, 9, 1),
    Sketcher.Constraint("Tangent", 9, 2, 10, 1),
    Sketcher.Constraint("Coincident", 10, 2, 11, 1),
    Sketcher.Constraint("Coincident", 11, 2, 6, 1),
    Sketcher.Constraint("Horizontal", 0),
    Sketcher.Constraint("Vertical", 1),
    Sketcher.Constraint("Horizontal", 2),
    Sketcher.Constraint("Vertical", 4),
    Sketcher.Constraint("Horizontal", 6),
    Sketcher.Constraint("Vertical", 8),
    Sketcher.Constraint("Horizontal", 10),
    Sketcher.Constraint("Vertical", 11),
    Sketcher.Constraint("Coincident", 7, 3, 5, 3),
    Sketcher.Constraint("Coincident", 9, 3, 3, 3),
    Sketcher.Constraint("Equal", 3, 5),
    Sketcher.Constraint("Radius", 3, Q("54.3 mm")),
    Sketcher.Constraint("Radius", 7, Q("51.1 mm")),
    Sketcher.Constraint("DistanceX", 0, 2, 0, 1, Q("110.7 mm")),
    Sketcher.Constraint("DistanceX", 6, 1, 6, 2, Q("107.5 mm")),
    Sketcher.Constraint("DistanceX", -1, 1, 7, 2, Q("51 mm")),
    Sketcher.Constraint("DistanceY", 1, 1, 1, 2, Q("214.18 mm")),
    Sketcher.Constraint("DistanceY", -1, 1, 3, 3, Q("52.79 mm")),
])
pad2 = body.newObject("PartDesign::Pad", "Pad001")
pad2.Profile = sketch2
pad2.Length = 30
doc.recompute()

fillet = body.newObject("PartDesign::Fillet", "Fillet")
fillet.Base = (pad2, edges_at(pad2, [
    (0, 36.033, -88.923),
    (0, -53.85, -103.89),
    (0, -53.85, 103.89),
    (0, 36.033, 88.923),
    (0, 51, 0),
]))
fillet.Radius = 4.8
doc.recompute()

fillet2 = body.newObject("PartDesign::Fillet", "Fillet001")
fillet2.Base = (fillet, edges_at(fillet, [
    (3.2, 38.296, 91.186),
    (3.2, -55.45, 107.09),
    (3.2, -55.45, -107.09),
    (3.2, 38.296, -91.186),
    (3.2, 54.2, 0),
]))
fillet2.Radius = 8

# Sketch on YZ plane
sketch3 = body.newObject("Sketcher::SketchObject", "Sketch002")
sketch3.AttachmentSupport = (doc.getObject("YZ_Plane"), [""])
sketch3.MapMode = "FlatFace"
sketch3.AttachmentOffset = App.Placement(Vector(0, 0, -50), App.Rotation())
sketch3.addGeometry([
    Part.Circle(Vector(14.5, 65, 0), Vector(0, 0, 1), 5.2),  # 0
    Part.Circle(Vector(14.5, 65, 0), Vector(0, 0, 1), 2.5),  # 1
    Part.Circle(Vector(14.5, -65, 0), Vector(0, 0, 1), 5.2),  # 2
    Part.Circle(Vector(14.5, -65, 0), Vector(0, 0, 1), 2.5),  # 3
    Part.Circle(Vector(-95.5, -65, 0), Vector(0, 0, 1), 5.2),  # 4
    Part.Circle(Vector(-95.5, -65, 0), Vector(0, 0, 1), 2.5),  # 5
    Part.Circle(Vector(-95.5, 65, 0), Vector(0, 0, 1), 5.2),  # 6
    Part.Circle(Vector(-95.5, 65, 0), Vector(0, 0, 1), 2.5),  # 7
    Part.Circle(Vector(-46.5, 0, 0), Vector(0, 0, 1), 5.2),  # 8
    Part.Circle(Vector(-46.5, 0, 0), Vector(0, 0, 1), 2.5),  # 9
], False)
sketch3.addConstraint([
    Sketcher.Constraint("Coincident", 1, 3, 0, 3),
    Sketcher.Constraint("Coincident", 3, 3, 2, 3),
    Sketcher.Constraint("Coincident", 5, 3, 4, 3),
    Sketcher.Constraint("Coincident", 7, 3, 6, 3),
    Sketcher.Constraint("Coincident", 9, 3, 8, 3),
    Sketcher.Constraint("Equal", 0, 2),
    Sketcher.Constraint("Equal", 1, 3),
    Sketcher.Constraint("Equal", 2, 4),
    Sketcher.Constraint("Equal", 3, 5),
    Sketcher.Constraint("Equal", 4, 6),
    Sketcher.Constraint("Equal", 5, 7),
    Sketcher.Constraint("Equal", 6, 8),
    Sketcher.Constraint("Equal", 7, 9),
    Sketcher.Constraint("Symmetric", 0, 3, 2, 3, -1),
    Sketcher.Constraint("Symmetric", 4, 3, 6, 3, -1),
    Sketcher.Constraint("PointOnObject", 8, 3, -1),
    Sketcher.Constraint("Horizontal", 3, 3, 4, 3),
    Sketcher.Constraint("Diameter", 1, Q("5 mm")),
    Sketcher.Constraint("Diameter", 0, Q("10.5 mm")),
    Sketcher.Constraint("DistanceY", -1, 1, 0, 3, Q("65 mm")),
    Sketcher.Constraint("DistanceX", 4, 3, 2, 3, Q("110 mm")),
    Sketcher.Constraint("DistanceX", -1, 1, 0, 3, Q("14.5 mm")),
    Sketcher.Constraint("DistanceX", 8, 3, -1, 1, Q("46.55 mm")),
])
pad3 = body.newObject("PartDesign::Pad", "Pad002")
pad3.Profile = sketch3
pad3.Length = 50

# Sketch on YZ plane
sketch4 = body.newObject("Sketcher::SketchObject", "Sketch003")
sketch4.AttachmentSupport = (doc.getObject("YZ_Plane"), [""])
sketch4.MapMode = "FlatFace"
sketch4.AttachmentOffset = App.Placement(Vector(0, 0, -30), App.Rotation())
add_polygon(sketch4, [(-107.6, -96.5), (-110.8, -96.5), (-110.8, 96.5), (-107.6, 96.5)])  # lines 0-3
sketch4.addConstraint([
    Sketcher.Constraint("Horizontal", 0),
    Sketcher.Constraint("Vertical", 1),
    Sketcher.Constraint("Horizontal", 2),
    Sketcher.Constraint("Vertical", 3),
    Sketcher.Constraint("DistanceX", 0, 2, 0, 1, Q("3.2 mm")),
    Sketcher.Constraint("DistanceY", 1, 1, 1, 2, Q("192.98 mm")),
    Sketcher.Constraint("DistanceX", 0, 2, -1, 1, Q("110.8 mm")),
    Sketcher.Constraint("DistanceY", 0, 2, -1, 1, Q("96.49 mm")),
])
pad4 = body.newObject("PartDesign::Pad", "Pad003")
pad4.Profile = sketch4
pad4.Length = 15
pad4.Reversed = True

# Sketch on XZ plane
sketch5 = body.newObject("Sketcher::SketchObject", "Sketch004")
sketch5.AttachmentSupport = (doc.getObject("XZ_Plane"), [""])
sketch5.MapMode = "FlatFace"
sketch5.AttachmentOffset = App.Placement(Vector(0, 0, 110.8), App.Rotation())
sketch5.addGeometry([
    Part.Circle(Vector(-14.6, 77.1, 0), Vector(0, 0, 1), 2.3),
    Part.Circle(Vector(-34.6, 77.1, 0), Vector(0, 0, 1), 2.3),
    Part.Circle(Vector(-14.6, -77.1, 0), Vector(0, 0, 1), 2.3),
    Part.Circle(Vector(-34.6, -77.1, 0), Vector(0, 0, 1), 2.3),
], False)
sketch5.addConstraint([
    Sketcher.Constraint("Equal", 0, 1),
    Sketcher.Constraint("Equal", 1, 2),
    Sketcher.Constraint("Equal", 2, 3),
    Sketcher.Constraint("Symmetric", 0, 3, 2, 3, -1),
    Sketcher.Constraint("Symmetric", 1, 3, 3, 3, -1),
    Sketcher.Constraint("Horizontal", 0, 3, 1, 3),
    Sketcher.Constraint("Diameter", 0, Q("4.6 mm")),
    Sketcher.Constraint("DistanceX", 1, 3, 0, 3, Q("20 mm")),
    Sketcher.Constraint("DistanceX", 0, 3, -1, 1, Q("14.6 mm")),
    Sketcher.Constraint("DistanceY", -1, 1, 0, 3, Q("77.09 mm")),
])
pocket1 = body.newObject("PartDesign::Pocket", "Pocket")
pocket1.Profile = sketch5
pocket1.Length = 10

# Sketch on XZ plane
sketch6 = body.newObject("Sketcher::SketchObject", "Sketch005")
sketch6.AttachmentSupport = (doc.getObject("XZ_Plane"), [""])
sketch6.MapMode = "FlatFace"
sketch6.AttachmentOffset = App.Placement(Vector(0, 0, -54.2), App.Rotation())
add_polygon(sketch6, [(-30, -53), (-30, 7), (-16, 7), (-16, -53)])  # lines 0-3
sketch6.addConstraint([
    Sketcher.Constraint("Vertical", 0),
    Sketcher.Constraint("Horizontal", 1),
    Sketcher.Constraint("Vertical", 2),
    Sketcher.Constraint("Horizontal", 3),
    Sketcher.Constraint("DistanceX", 1, 1, 1, 2, Q("14 mm")),
    Sketcher.Constraint("DistanceY", 0, 1, 0, 2, Q("60 mm")),
    Sketcher.Constraint("DistanceX", 0, 2, -1, 1, Q("30 mm")),
    Sketcher.Constraint("DistanceY", -1, 1, 0, 2, Q("7.21 mm")),
])
pocket2 = body.newObject("PartDesign::Pocket", "Pocket001")
pocket2.Profile = sketch6
pocket2.Length = 10
pocket2.Reversed = True

doc.recompute()
